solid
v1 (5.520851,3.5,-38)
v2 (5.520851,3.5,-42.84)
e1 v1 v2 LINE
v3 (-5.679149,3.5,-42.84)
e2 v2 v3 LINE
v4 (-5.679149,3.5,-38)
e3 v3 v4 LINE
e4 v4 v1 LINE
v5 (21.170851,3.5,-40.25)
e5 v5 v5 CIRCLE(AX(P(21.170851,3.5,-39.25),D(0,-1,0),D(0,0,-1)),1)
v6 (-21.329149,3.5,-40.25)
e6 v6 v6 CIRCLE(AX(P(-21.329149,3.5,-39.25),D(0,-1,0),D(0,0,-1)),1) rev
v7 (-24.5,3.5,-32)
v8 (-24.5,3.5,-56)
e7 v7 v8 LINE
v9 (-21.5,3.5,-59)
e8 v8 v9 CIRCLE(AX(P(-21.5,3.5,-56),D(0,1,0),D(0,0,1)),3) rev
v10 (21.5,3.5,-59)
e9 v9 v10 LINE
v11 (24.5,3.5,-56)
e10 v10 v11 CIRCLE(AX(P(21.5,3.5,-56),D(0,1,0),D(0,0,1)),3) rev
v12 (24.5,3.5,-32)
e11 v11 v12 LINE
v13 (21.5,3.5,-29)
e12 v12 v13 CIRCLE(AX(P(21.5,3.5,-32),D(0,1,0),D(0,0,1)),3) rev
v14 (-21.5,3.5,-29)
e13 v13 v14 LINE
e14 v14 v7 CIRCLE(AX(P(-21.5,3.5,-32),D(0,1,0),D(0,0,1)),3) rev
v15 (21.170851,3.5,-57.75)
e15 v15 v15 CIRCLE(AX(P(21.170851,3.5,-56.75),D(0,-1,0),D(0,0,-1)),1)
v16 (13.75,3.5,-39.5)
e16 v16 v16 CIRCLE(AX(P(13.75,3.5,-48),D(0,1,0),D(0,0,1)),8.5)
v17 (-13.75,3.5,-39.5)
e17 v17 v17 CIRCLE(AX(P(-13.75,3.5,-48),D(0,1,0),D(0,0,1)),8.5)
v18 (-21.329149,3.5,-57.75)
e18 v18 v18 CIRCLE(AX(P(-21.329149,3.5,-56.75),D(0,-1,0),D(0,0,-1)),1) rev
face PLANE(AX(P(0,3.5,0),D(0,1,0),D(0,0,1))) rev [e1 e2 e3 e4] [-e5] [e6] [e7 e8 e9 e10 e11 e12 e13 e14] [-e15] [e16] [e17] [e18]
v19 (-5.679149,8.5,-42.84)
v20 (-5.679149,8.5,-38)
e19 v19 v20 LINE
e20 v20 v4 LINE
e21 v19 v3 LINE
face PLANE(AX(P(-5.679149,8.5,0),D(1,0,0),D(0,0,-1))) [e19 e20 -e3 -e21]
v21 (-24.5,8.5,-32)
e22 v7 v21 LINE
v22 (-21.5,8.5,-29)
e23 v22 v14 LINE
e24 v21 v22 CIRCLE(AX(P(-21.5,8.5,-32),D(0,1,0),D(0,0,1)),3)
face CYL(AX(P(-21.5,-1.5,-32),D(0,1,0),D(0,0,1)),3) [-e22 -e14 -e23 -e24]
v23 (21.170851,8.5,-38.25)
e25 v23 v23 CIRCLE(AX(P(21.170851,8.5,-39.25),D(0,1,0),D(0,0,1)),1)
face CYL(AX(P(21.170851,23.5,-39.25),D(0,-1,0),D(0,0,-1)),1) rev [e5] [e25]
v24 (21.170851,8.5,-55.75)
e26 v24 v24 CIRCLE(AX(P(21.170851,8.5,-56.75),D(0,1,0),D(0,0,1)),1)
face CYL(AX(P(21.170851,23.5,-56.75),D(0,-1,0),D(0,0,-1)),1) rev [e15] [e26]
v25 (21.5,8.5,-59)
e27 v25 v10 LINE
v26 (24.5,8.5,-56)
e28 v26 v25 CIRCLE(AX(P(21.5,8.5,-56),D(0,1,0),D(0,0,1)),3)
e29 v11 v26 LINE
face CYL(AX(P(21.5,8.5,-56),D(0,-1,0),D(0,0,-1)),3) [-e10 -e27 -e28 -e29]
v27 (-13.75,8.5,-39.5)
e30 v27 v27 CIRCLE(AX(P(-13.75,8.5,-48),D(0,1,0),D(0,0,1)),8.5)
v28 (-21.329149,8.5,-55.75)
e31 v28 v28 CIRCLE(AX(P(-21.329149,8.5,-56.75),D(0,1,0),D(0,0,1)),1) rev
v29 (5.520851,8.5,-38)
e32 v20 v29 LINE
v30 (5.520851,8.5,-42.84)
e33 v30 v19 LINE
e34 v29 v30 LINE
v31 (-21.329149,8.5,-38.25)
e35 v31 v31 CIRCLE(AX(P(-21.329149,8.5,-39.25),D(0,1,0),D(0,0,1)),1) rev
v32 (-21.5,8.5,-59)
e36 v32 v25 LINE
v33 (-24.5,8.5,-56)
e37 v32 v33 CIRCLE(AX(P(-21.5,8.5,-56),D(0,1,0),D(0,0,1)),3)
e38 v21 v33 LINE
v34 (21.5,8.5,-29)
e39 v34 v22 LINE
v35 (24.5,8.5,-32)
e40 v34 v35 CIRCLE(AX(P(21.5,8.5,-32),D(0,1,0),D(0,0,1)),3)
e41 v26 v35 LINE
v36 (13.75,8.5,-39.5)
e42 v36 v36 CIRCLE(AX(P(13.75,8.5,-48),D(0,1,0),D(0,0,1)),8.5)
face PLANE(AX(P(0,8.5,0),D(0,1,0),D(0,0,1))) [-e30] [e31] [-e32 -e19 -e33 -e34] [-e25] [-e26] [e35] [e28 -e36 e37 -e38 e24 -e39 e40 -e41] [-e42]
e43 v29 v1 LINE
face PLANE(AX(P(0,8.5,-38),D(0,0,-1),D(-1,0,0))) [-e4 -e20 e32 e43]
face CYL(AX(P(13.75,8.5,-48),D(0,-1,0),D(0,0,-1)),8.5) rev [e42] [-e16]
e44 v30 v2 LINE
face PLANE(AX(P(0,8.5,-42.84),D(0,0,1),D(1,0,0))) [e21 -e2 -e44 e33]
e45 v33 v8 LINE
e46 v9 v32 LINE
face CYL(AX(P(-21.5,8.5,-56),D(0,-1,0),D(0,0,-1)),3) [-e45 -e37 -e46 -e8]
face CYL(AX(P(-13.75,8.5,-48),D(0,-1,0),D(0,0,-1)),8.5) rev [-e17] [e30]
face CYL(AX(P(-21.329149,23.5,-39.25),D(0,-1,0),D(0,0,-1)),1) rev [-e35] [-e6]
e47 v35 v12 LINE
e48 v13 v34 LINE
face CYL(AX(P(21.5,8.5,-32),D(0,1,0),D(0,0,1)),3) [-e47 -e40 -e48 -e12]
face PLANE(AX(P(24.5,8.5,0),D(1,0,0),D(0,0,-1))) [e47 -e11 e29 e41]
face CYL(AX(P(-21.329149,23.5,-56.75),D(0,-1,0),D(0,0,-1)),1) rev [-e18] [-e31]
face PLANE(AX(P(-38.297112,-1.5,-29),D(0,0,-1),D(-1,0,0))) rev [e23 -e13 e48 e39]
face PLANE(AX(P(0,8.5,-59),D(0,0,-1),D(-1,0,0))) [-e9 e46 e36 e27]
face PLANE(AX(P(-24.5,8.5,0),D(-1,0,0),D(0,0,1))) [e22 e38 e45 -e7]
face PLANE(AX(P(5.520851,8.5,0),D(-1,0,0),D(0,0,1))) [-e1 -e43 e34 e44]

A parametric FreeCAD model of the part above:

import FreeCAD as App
import Part
import Sketcher
from FreeCAD import Vector
Q = App.Units.Quantity


def edges_at(feature, points):
    """Names of the edges that pass closest to the given points."""
    edges = feature.Shape.Edges
    near = lambda p: min(range(len(edges)), key=lambda i: edges[i].distToShape(Part.Vertex(*p))[0])
    return sorted({f"Edge{near(p) + 1}" for p in points})

doc = App.newDocument("Part")
body = doc.addObject("PartDesign::Body", "Body")

sketch1 = body.newObject("Sketcher::SketchObject", "Sketch")
sketch1.AttachmentSupport = (doc.getObject("XZ_Plane"), [""])
sketch1.MapMode = "FlatFace"
sketch1.addGeometry([
    Part.Circle(Vector(0, 0, 0), Vector(0, 0, 1), 21),
    Part.Circle(Vector(0, 0, 0), Vector(0, 0, 1), 20),
], False)
sketch1.addConstraint([
    Sketcher.Constraint("Coincident", 0, 3, -1, 1),
    Sketcher.Constraint("Coincident", 1, 3, -1, 1),
    Sketcher.Constraint("Diameter", 0, Q("42 mm")),
    Sketcher.Constraint("Diameter", 1, Q("40 mm")),
])
pad1 = body.newObject("PartDesign::Pad", "Pad")
pad1.Profile = sketch1
pad1.Length = 3.5
pad1.Reversed = True

sketch2 = body.newObject("Sketcher::SketchObject", "Sketch001")
sketch2.AttachmentSupport = (doc.getObject("XZ_Plane"), [""])
sketch2.MapMode = "FlatFace"
sketch2.AttachmentOffset = App.Placement(Vector(0, 0, -3.5), App.Rotation())
sketch2.addGeometry([
    Part.LineSegment(Vector(-29, 5, 0), Vector(-29, 29, 0)),
    Part.LineSegment(Vector(-29, 29, 0), Vector(29, 29, 0)),
    Part.LineSegment(Vector(29, 29, 0), Vector(29, 5, 0)),
    Part.LineSegment(Vector(29, 5, 0), Vector(39, 5, 0)),
    Part.LineSegment(Vector(39, 5, 0), Vector(39, -5, 0)),
    Part.LineSegment(Vector(39, -5, 0), Vector(29, -5, 0)),
    Part.LineSegment(Vector(29, -5, 0), Vector(29, -29, 0)),
    Part.LineSegment(Vector(29, -29, 0), Vector(24.5, -29, 0)),
    Part.LineSegment(Vector(24.5, -29, 0), Vector(24.5, -51, 0)),
    Part.LineSegment(Vector(24.5, -51, 0), Vector(-24.5, -51, 0)),
    Part.LineSegment(Vector(-24.5, -51, 0), Vector(-24.5, -29, 0)),
    Part.LineSegment(Vector(-24.5, -29, 0), Vector(-29, -29, 0)),
    Part.LineSegment(Vector(-29, -29, 0), Vector(-29, -5, 0)),
    Part.LineSegment(Vector(-29, -5, 0), Vector(-39, -5, 0)),
    Part.LineSegment(Vector(-39, -5, 0), Vector(-39, 5, 0)),
    Part.LineSegment(Vector(-39, 5, 0), Vector(-29, 5, 0)),
    Part.Circle(Vector(-23.6, 23.6, 0), Vector(0, 0, 1), 3.5),
    Part.Circle(Vector(-34, 0, 0), Vector(0, 0, 1), 2.5),
    Part.Circle(Vector(23.6, 23.6, 0), Vector(0, 0, 1), 3.5),
    Part.Circle(Vector(0, 0, 0), Vector(0, 0, 1), 6.5),
    Part.Circle(Vector(34, 0, 0), Vector(0, 0, 1), 2.5),
    Part.Circle(Vector(-23.6, -23.6, 0), Vector(0, 0, 1), 3.5),
    Part.Circle(Vector(-13.8, -39, 0), Vector(0, 0, 1), 8.5),
    Part.Circle(Vector(23.6, -23.6, 0), Vector(0, 0, 1), 3.5),
    Part.Circle(Vector(13.8, -39, 0), Vector(0, 0, 1), 8.5),
    Part.LineSegment(Vector(5.6, -43.9, 0), Vector(-5.6, -43.9, 0)),
    Part.LineSegment(Vector(-5.6, -43.9, 0), Vector(-5.6, -48.7, 0)),
    Part.LineSegment(Vector(-5.6, -48.7, 0), Vector(5.6, -48.7, 0)),
    Part.LineSegment(Vector(5.6, -48.7, 0), Vector(5.6, -43.9, 0)),
], False)
sketch2.addConstraint([
    Sketcher.Constraint("Coincident", 0, 2, 1, 1),
    Sketcher.Constraint("Coincident", 1, 2, 2, 1),
    Sketcher.Constraint("Coincident", 2, 2, 3, 1),
    Sketcher.Constraint("Coincident", 3, 2, 4, 1),
    Sketcher.Constraint("Coincident", 4, 2, 5, 1),
    Sketcher.Constraint("Coincident", 5, 2, 6, 1),
    Sketcher.Constraint("Coincident", 6, 2, 7, 1),
    Sketcher.Constraint("Coincident", 7, 2, 8, 1),
    Sketcher.Constraint("Coincident", 8, 2, 9, 1),
    Sketcher.Constraint("Coincident", 9, 2, 10, 1),
    Sketcher.Constraint("Coincident", 10, 2, 11, 1),
    Sketcher.Constraint("Coincident", 11, 2, 12, 1),
    Sketcher.Constraint("Coincident", 12, 2, 13, 1),
    Sketcher.Constraint("Coincident", 13, 2, 14, 1),
    Sketcher.Constraint("Coincident", 14, 2, 15, 1),
    Sketcher.Constraint("Coincident", 15, 2, 0, 1),
    Sketcher.Constraint("Coincident", 25, 2, 26, 1),
    Sketcher.Constraint("Coincident", 26, 2, 27, 1),
    Sketcher.Constraint("Coincident", 27, 2, 28, 1),
    Sketcher.Constraint("Coincident", 28, 2, 25, 1),
    Sketcher.Constraint("Vertical", 0),
    Sketcher.Constraint("Horizontal", 1),
    Sketcher.Constraint("Vertical", 2),
    Sketcher.Constraint("Horizontal", 3),
    Sketcher.Constraint("Vertical", 4),
    Sketcher.Constraint("Horizontal", 5),
    Sketcher.Constraint("Vertical", 6),
    Sketcher.Constraint("Horizontal", 7),
    Sketcher.Constraint("Vertical", 8),
    Sketcher.Constraint("Horizontal", 9),
    Sketcher.Constraint("Vertical", 10),
    Sketcher.Constraint("Horizontal", 11),
    Sketcher.Constraint("Vertical", 12),
    Sketcher.Constraint("Horizontal", 13),
    Sketcher.Constraint("Vertical", 14),
    Sketcher.Constraint("Horizontal", 15),
    Sketcher.Constraint("Horizontal", 25),
    Sketcher.Constraint("Vertical", 26),
    Sketcher.Constraint("Horizontal", 27),
    Sketcher.Constraint("Vertical", 28),
    Sketcher.Constraint("Coincident", 19, 3, -1, 1),
    Sketcher.Constraint("Equal", 16, 18),
    Sketcher.Constraint("Equal", 17, 20),
    Sketcher.Constraint("Equal", 18, 21),
    Sketcher.Constraint("Equal", 21, 23),
    Sketcher.Constraint("Equal", 22, 24),
    Sketcher.Constraint("Symmetric", 17, 3, 20, 3, -1, 1),
    Sketcher.Constraint("Symmetric", 18, 3, 21, 3, -1, 1),
    Sketcher.Constraint("Symmetric", 16, 3, 23, 3, -1, 1),
    Sketcher.Constraint("Symmetric", 0, 2, 6, 2, -1, 1),
    Sketcher.Constraint("Symmetric", 1, 2, 11, 2, -1, 1),
    Sketcher.Constraint("Symmetric", 3, 2, 13, 2, -1, 1),
    Sketcher.Constraint("Symmetric", 16, 3, 18, 3, -2),
    Sketcher.Constraint("Symmetric", 22, 3, 24, 3, -2),
    Sketcher.Constraint("Symmetric", 5, 2, 12, 2, -2),
    Sketcher.Constraint("PointOnObject", 17, 3, -1),
    Sketcher.Constraint("Horizontal", 3, 2, 14, 2),
    Sketcher.Constraint("Equal", 7, 11),
    Sketcher.Constraint("Equal", 15, 4),
    Sketcher.Constraint("Diameter", 22, Q("17 mm")),
    Sketcher.Constraint("Diameter", 16, Q("7.1 mm")),
    Sketcher.Constraint("Diameter", 17, Q("5.1 mm")),
    Sketcher.Constraint("Diameter", 19, Q("13.1 mm")),
    Sketcher.Constraint("DistanceX", 1, 1, 1, 2, Q("58 mm")),
    Sketcher.Constraint("DistanceX", 3, 1, 3, 2, Q("10 mm")),
    Sketcher.Constraint("DistanceX", 9, 2, 9, 1, Q("49 mm")),
    Sketcher.Constraint("DistanceY", 0, 1, 0, 2, Q("24 mm")),
    Sketcher.Constraint("DistanceY", 8, 2, 8, 1, Q("22 mm")),
    Sketcher.Constraint("DistanceX", 25, 2, 25, 1, Q("11.2 mm")),
    Sketcher.Constraint("DistanceX", 17, 3, -1, 1, Q("34 mm")),
    Sketcher.Constraint("DistanceY", 22, 3, -1, 1, Q("39 mm")),
    Sketcher.Constraint("DistanceY", 26, 2, 26, 1, Q("4.84 mm")),
    Sketcher.Constraint("DistanceX", 25, 2, -1, 1, Q("5.6 mm")),
    Sketcher.Constraint("DistanceY", 26, 2, -1, 1, Q("48.7 mm")),
    Sketcher.Constraint("DistanceX", 16, 3, 18, 3, Q("47.1 mm")),
    Sketcher.Constraint("DistanceY", 21, 3, 16, 3, Q("47.1 mm")),
    Sketcher.Constraint("DistanceX", 22, 3, -1, 1, Q("13.76 mm")),
])
pad2 = body.newObject("PartDesign::Pad", "Pad001")
pad2.Profile = sketch2
pad2.Length = 5
pad2.Reversed = True

sketch3 = body.newObject("Sketcher::SketchObject", "Sketch002")
sketch3.AttachmentSupport = (doc.getObject("XZ_Plane"), [""])
sketch3.MapMode = "FlatFace"
sketch3.AttachmentOffset = App.Placement(Vector(0, 0, -3.5), App.Rotation())
sketch3.addGeometry([
    Part.LineSegment(Vector(-5.6, -48.7, 0), Vector(-5.6, -43.9, 0)),
    Part.LineSegment(Vector(-5.6, -43.9, 0), Vector(5.6, -43.9, 0)),
    Part.LineSegment(Vector(5.6, -43.9, 0), Vector(5.6, -48.7, 0)),
    Part.LineSegment(Vector(5.6, -48.7, 0), Vector(-5.6, -48.7, 0)),
    Part.LineSegment(Vector(-24.5, -59, 0), Vector(-24.5, -51, 0)),
    Part.LineSegment(Vector(-24.5, -51, 0), Vector(24.5, -51, 0)),
    Part.LineSegment(Vector(24.5, -51, 0), Vector(24.5, -59, 0)),
    Part.LineSegment(Vector(24.5, -59, 0), Vector(-24.5, -59, 0)),
    Part.Circle(Vector(13.8, -39, 0), Vector(0, 0, 1), 8.5),
    Part.Circle(Vector(-13.8, -39, 0), Vector(0, 0, 1), 8.5),
], False)
sketch3.addConstraint([
    Sketcher.Constraint("Coincident", 0, 2, 1, 1),
    Sketcher.Constraint("Coincident", 1, 2, 2, 1),
    Sketcher.Constraint("Coincident", 2, 2, 3, 1),
    Sketcher.Constraint("Coincident", 3, 2, 0, 1),
    Sketcher.Constraint("Coincident", 4, 2, 5, 1),
    Sketcher.Constraint("Coincident", 5, 2, 6, 1),
    Sketcher.Constraint("Coincident", 6, 2, 7, 1),
    Sketcher.Constraint("Coincident", 7, 2, 4, 1),
    Sketcher.Constraint("Vertical", 0),
    Sketcher.Constraint("Horizontal", 1),
    Sketcher.Constraint("Vertical", 2),
    Sketcher.Constraint("Horizontal", 3),
    Sketcher.Constraint("Vertical", 4),
    Sketcher.Constraint("Horizontal", 5),
    Sketcher.Constraint("Vertical", 6),
    Sketcher.Constraint("Horizontal", 7),
    Sketcher.Constraint("Equal", 8, 9),
    Sketcher.Constraint("Symmetric", 8, 3, 9, 3, -2),
    Sketcher.Constraint("Diameter", 8, Q("17 mm")),
    Sketcher.Constraint("DistanceX", 5, 1, 5, 2, Q("49 mm")),
    Sketcher.Constraint("DistanceY", 4, 1, 4, 2, Q("8 mm")),
    Sketcher.Constraint("DistanceX", 1, 1, 1, 2, Q("11.2 mm")),
    Sketcher.Constraint("DistanceY", 8, 3, -1, 1, Q("39 mm")),
    Sketcher.Constraint("DistanceY", 4, 2, -1, 1, Q("51 mm")),
    Sketcher.Constraint("DistanceY", 0, 1, 0, 2, Q("4.84 mm")),
    Sketcher.Constraint("DistanceX", 0, 2, -1, 1, Q("5.6 mm")),
    Sketcher.Constraint("DistanceY", 2, 2, -1, 1, Q("48.7 mm")),
    Sketcher.Constraint("DistanceX", 4, 2, -1, 1, Q("24.5 mm")),
    Sketcher.Constraint("DistanceX", -1, 1, 8, 3, Q("13.76 mm")),
])
pad3 = body.newObject("PartDesign::Pad", "Pad002")
pad3.Profile = sketch3
pad3.Length = 5
pad3.Reversed = True

sketch4 = body.newObject("Sketcher::SketchObject", "Sketch003")
sketch4.AttachmentSupport = (doc.getObject("XZ_Plane"), [""])
sketch4.MapMode = "FlatFace"
sketch4.AttachmentOffset = App.Placement(Vector(0, 0, -3.5), App.Rotation())
sketch4.addGeometry([
    Part.Circle(Vector(-13.8, -48, 0), Vector(0, 0, 1), 8.5),
    Part.Circle(Vector(13.8, -48, 0), Vector(0, 0, 1), 8.5),
    Part.LineSegment(Vector(-5.7, -42.8, 0), Vector(-5.7, -38, 0)),
    Part.LineSegment(Vector(-5.7, -38, 0), Vector(5.5, -38, 0)),
    Part.LineSegment(Vector(5.5, -38, 0), Vector(5.5, -42.8, 0)),
    Part.LineSegment(Vector(5.5, -42.8, 0), Vector(-5.7, -42.8, 0)),
], False)
sketch4.addConstraint([
    Sketcher.Constraint("Coincident", 2, 2, 3, 1),
    Sketcher.Constraint("Coincident", 3, 2, 4, 1),
    Sketcher.Constraint("Coincident", 4, 2, 5, 1),
    Sketcher.Constraint("Coincident", 5, 2, 2, 1),
    Sketcher.Constraint("Vertical", 2),
    Sketcher.Constraint("Horizontal", 3),
    Sketcher.Constraint("Vertical", 4),
    Sketcher.Constraint("Horizontal", 5),
    Sketcher.Constraint("Equal", 0, 1),
    Sketcher.Constraint("Symmetric", 0, 3, 1, 3, -2),
    Sketcher.Constraint("Diameter", 0, Q("17 mm")),
    Sketcher.Constraint("DistanceX", 3, 1, 3, 2, Q("11.2 mm")),
    Sketcher.Constraint("DistanceY", 0, 3, -1, 1, Q("48 mm")),
    Sketcher.Constraint("DistanceY", 2, 2, -1, 1, Q("38 mm")),
    Sketcher.Constraint("DistanceY", 2, 1, 2, 2, Q("4.84 mm")),
    Sketcher.Constraint("DistanceX", 0, 3, 1, 3, Q("27.5 mm")),
    Sketcher.Constraint("DistanceX", 2, 2, -1, 1, Q("5.679149 mm")),
])
pocket1 = body.newObject("PartDesign::Pocket", "Pocket")
pocket1.Profile = sketch4
pocket1.Type = "ThroughAll"
doc.recompute()

fillet = body.newObject("PartDesign::Fillet", "Fillet")
fillet.Base = (pocket1, edges_at(pocket1, [
    (-29, 6, 29),
    (29, 6, 29),
    (39, 6, 5),
    (39, 6, -5),
    (29, 6, -29),
    (-29, 6, -29),
    (-39, 6, -5),
    (-39, 6, 5),
    (24.5, 6, -59),
    (-24.5, 6, -59),
]))
fillet.Radius = 3

sketch5 = body.newObject("Sketcher::SketchObject", "Sketch004")
sketch5.AttachmentSupport = (doc.getObject("XY_Plane"), [""])
sketch5.MapMode = "FlatFace"
sketch5.addGeometry([
    Part.LineSegment(Vector(-21, 3.5, 0), Vector(-21, 0, 0)),
    Part.LineSegment(Vector(-21, 0, 0), Vector(21, 0, 0)),
    Part.LineSegment(Vector(21, 0, 0), Vector(21, 3.5, 0)),
    Part.LineSegment(Vector(21, 3.5, 0), Vector(-21, 3.5, 0)),
], False)
sketch5.addConstraint([
    Sketcher.Constraint("Coincident", 0, 2, 1, 1),
    Sketcher.Constraint("Coincident", 1, 2, 2, 1),
    Sketcher.Constraint("Coincident", 2, 2, 3, 1),
    Sketcher.Constraint("Coincident", 3, 2, 0, 1),
    Sketcher.Constraint("Vertical", 0),
    Sketcher.Constraint("Horizontal", 1),
    Sketcher.Constraint("Vertical", 2),
    Sketcher.Constraint("Horizontal", 3),
    Sketcher.Constraint("Symmetric", 0, 2, 1, 2, -1, 1),
    Sketcher.Constraint("DistanceX", 1, 1, 1, 2, Q("42 mm")),
    Sketcher.Constraint("DistanceY", 0, 2, 0, 1, Q("3.5 mm")),
])
pocket2 = body.newObject("PartDesign::Pocket", "Pocket001")
pocket2.Profile = sketch5
pocket2.Length = 50
pocket2.Midplane = True

sketch6 = body.newObject("Sketcher::SketchObject", "Sketch005")
sketch6.AttachmentSupport = (doc.getObject("XZ_Plane"), [""])
sketch6.MapMode = "FlatFace"
sketch6.AttachmentOffset = App.Placement(Vector(0, 0, -8.5), App.Rotation())
sketch6.addGeometry([
    Part.LineSegment(Vector(43, -29, 0), Vector(-52, -29, 0)),
    Part.LineSegment(Vector(-52, -29, 0), Vector(-52, 33, 0)),
    Part.LineSegment(Vector(-52, 33, 0), Vector(43, 33, 0)),
    Part.LineSegment(Vector(43, 33, 0), Vector(43, -29, 0)),
], False)
sketch6.addConstraint([
    Sketcher.Constraint("Coincident", 0, 2, 1, 1),
    Sketcher.Constraint("Coincident", 1, 2, 2, 1),
    Sketcher.Constraint("Coincident", 2, 2, 3, 1),
    Sketcher.Constraint("Coincident", 3, 2, 0, 1),
    Sketcher.Constraint("Horizontal", 0),
    Sketcher.Constraint("Vertical", 1),
    Sketcher.Constraint("Horizontal", 2),
    Sketcher.Constraint("Vertical", 3),
    Sketcher.Constraint("DistanceY", 0, 2, -1, 1, Q("29 mm")),
    Sketcher.Constraint("DistanceY", 1, 1, 1, 2, Q("62.143001 mm")),
    Sketcher.Constraint("DistanceX", 0, 2, 0, 1, Q("95.394753 mm")),
    Sketcher.Constraint("DistanceX", -1, 1, 2, 2, Q("43.32191 mm")),
])
pocket3 = body.newObject("PartDesign::Pocket", "Pocket002")
pocket3.Profile = sketch6
pocket3.Length = 10
pocket3.Reversed = True
doc.recompute()

fillet2 = body.newObject("PartDesign::Fillet", "Fillet001")
fillet2.Base = (pocket3, edges_at(pocket3, [(24.5, 6, -29), (-24.5, 6, -29)]))
fillet2.Radius = 3

sketch7 = body.newObject("Sketcher::SketchObject", "Sketch006")
sketch7.AttachmentSupport = (doc.getObject("XZ_Plane"), [""])
sketch7.MapMode = "FlatFace"
sketch7.AttachmentOffset = App.Placement(Vector(0, 0, -3.5), App.Rotation())
sketch7.addGeometry([
    Part.Circle(Vector(-21.3, -39.2, 0), Vector(0, 0, 1), 1),
    Part.Circle(Vector(-21.3, -56.8, 0), Vector(0, 0, 1), 1),
    Part.Circle(Vector(21.2, -56.8, 0), Vector(0, 0, 1), 1),
    Part.Circle(Vector(21.2, -39.2, 0), Vector(0, 0, 1), 1),
], False)
sketch7.addConstraint([
    Sketcher.Constraint("Equal", 0, 1),
    Sketcher.Constraint("Equal", 1, 2),
    Sketcher.Constraint("Equal", 2, 3),
    Sketcher.Constraint("Horizontal", 1, 3, 2, 3),
    Sketcher.Constraint("Horizontal", 0, 3, 3, 3),
    Sketcher.Constraint("Vertical", 0, 3, 1, 3),
    Sketcher.Constraint("Vertical", 2, 3, 3, 3),
    Sketcher.Constraint("Diameter", 0, Q("2 mm")),
    Sketcher.Constraint("DistanceY", 1, 3, 0, 3, Q("17.5 mm")),
    Sketcher.Constraint("DistanceX", 1, 3, 2, 3, Q("42.5 mm")),
    Sketcher.Constraint("DistanceY", 0, 3, -1, 1, Q("39.25 mm")),
    Sketcher.Constraint("DistanceX", 0, 3, -1, 1, Q("21.329149 mm")),
])
pocket4 = body.newObject("PartDesign::Pocket", "Pocket003")
pocket4.Profile = sketch7
pocket4.Length = 20

doc.recompute()
